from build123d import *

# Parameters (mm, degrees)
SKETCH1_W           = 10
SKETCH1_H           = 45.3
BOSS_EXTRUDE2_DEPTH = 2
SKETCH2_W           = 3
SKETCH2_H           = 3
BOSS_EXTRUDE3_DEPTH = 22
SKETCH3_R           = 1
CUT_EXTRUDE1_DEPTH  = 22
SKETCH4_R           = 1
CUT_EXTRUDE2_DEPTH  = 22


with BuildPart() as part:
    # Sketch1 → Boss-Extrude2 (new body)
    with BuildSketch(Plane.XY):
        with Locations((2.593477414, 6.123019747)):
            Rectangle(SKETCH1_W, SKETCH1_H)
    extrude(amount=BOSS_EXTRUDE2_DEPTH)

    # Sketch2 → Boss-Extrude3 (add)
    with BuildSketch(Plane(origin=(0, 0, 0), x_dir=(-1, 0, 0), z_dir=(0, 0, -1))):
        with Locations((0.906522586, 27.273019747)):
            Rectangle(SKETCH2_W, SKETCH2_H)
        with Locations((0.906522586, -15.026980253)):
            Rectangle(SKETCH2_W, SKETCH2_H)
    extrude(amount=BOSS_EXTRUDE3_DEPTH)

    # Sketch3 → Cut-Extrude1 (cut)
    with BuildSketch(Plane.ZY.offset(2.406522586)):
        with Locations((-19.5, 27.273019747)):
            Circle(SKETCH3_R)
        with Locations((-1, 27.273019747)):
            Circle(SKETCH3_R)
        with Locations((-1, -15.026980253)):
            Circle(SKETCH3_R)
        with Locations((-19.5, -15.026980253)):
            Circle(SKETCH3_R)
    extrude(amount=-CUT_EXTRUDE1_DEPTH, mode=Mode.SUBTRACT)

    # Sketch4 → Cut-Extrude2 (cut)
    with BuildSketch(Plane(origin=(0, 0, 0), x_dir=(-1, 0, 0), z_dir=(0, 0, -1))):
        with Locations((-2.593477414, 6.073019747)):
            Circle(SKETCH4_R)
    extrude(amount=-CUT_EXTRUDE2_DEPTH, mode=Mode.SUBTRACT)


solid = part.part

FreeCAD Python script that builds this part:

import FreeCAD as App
import Part
import Sketcher

doc = App.newDocument("Part")
body = doc.addObject("PartDesign::Body", "Body")

sketch1 = body.newObject("Sketcher::SketchObject", "Sketch")
sketch1.AttachmentSupport = (doc.getObject("XY_Plane"), [""])
sketch1.MapMode = "FlatFace"
sketch1.addGeometry(Part.LineSegment(App.Vector(-2, 29, 0), App.Vector(-2, -17, 0)), False)
sketch1.addGeometry(Part.LineSegment(App.Vector(-2, -17, 0), App.Vector(8, -17, 0)), False)
sketch1.addGeometry(Part.LineSegment(App.Vector(8, -17, 0), App.Vector(8, 29, 0)), False)
sketch1.addGeometry(Part.LineSegment(App.Vector(8, 29, 0), App.Vector(-2, 29, 0)), False)
sketch1.addConstraint(Sketcher.Constraint("Coincident", 0, 2, 1, 1))
sketch1.addConstraint(Sketcher.Constraint("Coincident", 1, 2, 2, 1))
sketch1.addConstraint(Sketcher.Constraint("Coincident", 2, 2, 3, 1))
sketch1.addConstraint(Sketcher.Constraint("Coincident", 3, 2, 0, 1))
sketch1.addConstraint(Sketcher.Constraint("Vertical", 0))
sketch1.addConstraint(Sketcher.Constraint("Horizontal", 1))
sketch1.addConstraint(Sketcher.Constraint("Vertical", 2))
sketch1.addConstraint(Sketcher.Constraint("Horizontal", 3))
sketch1.addConstraint(Sketcher.Constraint("DistanceX", 1, 1, 1, 2, 10.0))
sketch1.addConstraint(Sketcher.Constraint("DistanceY", 0, 2, 0, 1, 45.3))
sketch1.addConstraint(Sketcher.Constraint("DistanceY", 0, 2, -1, 1, 16.52698))
sketch1.addConstraint(Sketcher.Constraint("DistanceX", 0, 2, -1, 1, 2.406523))
pad1 = body.newObject("PartDesign::Pad", "Pad")
pad1.Profile = sketch1
pad1.Length = 2

sketch2 = body.newObject("Sketcher::SketchObject", "Sketch001")
sketch2.AttachmentSupport = (doc.getObject("XY_Plane"), [""])
sketch2.MapMode = "FlatFace"
sketch2.addGeometry(Part.LineSegment(App.Vector(0.6, 28.8, 0), App.Vector(0.6, 25.8, 0)), False)
sketch2.addGeometry(Part.LineSegment(App.Vector(0.6, 25.8, 0), App.Vector(-2.4, 25.8, 0)), False)
sketch2.addGeometry(Part.LineSegment(App.Vector(-2.4, 25.8, 0), App.Vector(-2.4, 28.8, 0)), False)
sketch2.addGeometry(Part.LineSegment(App.Vector(-2.4, 28.8, 0), App.Vector(0.6, 28.8, 0)), False)
sketch2.addGeometry(Part.LineSegment(App.Vector(0.6, -13.5, 0), App.Vector(0.6, -16.5, 0)), False)
sketch2.addGeometry(Part.LineSegment(App.Vector(0.6, -16.5, 0), App.Vector(-2.4, -16.5, 0)), False)
sketch2.addGeometry(Part.LineSegment(App.Vector(-2.4, -16.5, 0), App.Vector(-2.4, -13.5, 0)), False)
sketch2.addGeometry(Part.LineSegment(App.Vector(-2.4, -13.5, 0), App.Vector(0.6, -13.5, 0)), False)
sketch2.addConstraint(Sketcher.Constraint("Coincident", 0, 2, 1, 1))
sketch2.addConstraint(Sketcher.Constraint("Coincident", 1, 2, 2, 1))
sketch2.addConstraint(Sketcher.Constraint("Coincident", 2, 2, 3, 1))
sketch2.addConstraint(Sketcher.Constraint("Coincident", 3, 2, 0, 1))
sketch2.addConstraint(Sketcher.Constraint("Coincident", 4, 2, 5, 1))
sketch2.addConstraint(Sketcher.Constraint("Coincident", 5, 2, 6, 1))
sketch2.addConstraint(Sketcher.Constraint("Coincident", 6, 2, 7, 1))
sketch2.addConstraint(Sketcher.Constraint("Coincident", 7, 2, 4, 1))
sketch2.addConstraint(Sketcher.Constraint("Vertical", 0))
sketch2.addConstraint(Sketcher.Constraint("Horizontal", 1))
sketch2.addConstraint(Sketcher.Constraint("Vertical", 2))
sketch2.addConstraint(Sketcher.Constraint("Horizontal", 3))
sketch2.addConstraint(Sketcher.Constraint("Vertical", 4))
sketch2.addConstraint(Sketcher.Constraint("Horizontal", 5))
sketch2.addConstraint(Sketcher.Constraint("Vertical", 6))
sketch2.addConstraint(Sketcher.Constraint("Horizontal", 7))
sketch2.addConstraint(Sketcher.Constraint("Vertical", 3, 2, 4, 2))
sketch2.addConstraint(Sketcher.Constraint("Vertical", 2, 2, 5, 2))
sketch2.addConstraint(Sketcher.Constraint("Equal", 7, 0))
sketch2.addConstraint(Sketcher.Constraint("Equal", 2, 4))
sketch2.addConstraint(Sketcher.Constraint("DistanceX", 1, 2, 1, 1, 3.0))
sketch2.addConstraint(Sketcher.Constraint("DistanceY", 4, 2, 0, 2, 42.3))
sketch2.addConstraint(Sketcher.Constraint("DistanceY", -1, 1, 0, 2, 25.77302))
sketch2.addConstraint(Sketcher.Constraint("DistanceX", -1, 1, 0, 2, 0.593477))
pad2 = body.newObject("PartDesign::Pad", "Pad001")
pad2.Profile = sketch2
pad2.Length = 22
pad2.Reversed = True

sketch3 = body.newObject("Sketcher::SketchObject", "Sketch002")
sketch3.AttachmentSupport = (doc.getObject("YZ_Plane"), [""])
sketch3.MapMode = "FlatFace"
sketch3.AttachmentOffset = App.Placement(App.Vector(0, 0, -2.406523), App.Rotation())
sketch3.addGeometry(Part.Circle(App.Vector(27.3, -19.5, 0), App.Vector(0, 0, 1), 1), False)
sketch3.addGeometry(Part.Circle(App.Vector(27.3, -1, 0), App.Vector(0, 0, 1), 1), False)
sketch3.addGeometry(Part.Circle(App.Vector(-15, -1, 0), App.Vector(0, 0, 1), 1), False)
sketch3.addGeometry(Part.Circle(App.Vector(-15, -19.5, 0), App.Vector(0, 0, 1), 1), False)
sketch3.addConstraint(Sketcher.Constraint("Equal", 0, 1))
sketch3.addConstraint(Sketcher.Constraint("Equal", 1, 2))
sketch3.addConstraint(Sketcher.Constraint("Equal", 2, 3))
sketch3.addConstraint(Sketcher.Constraint("Horizontal", 1, 3, 2, 3))
sketch3.addConstraint(Sketcher.Constraint("Horizontal", 0, 3, 3, 3))
sketch3.addConstraint(Sketcher.Constraint("Vertical", 0, 3, 1, 3))
sketch3.addConstraint(Sketcher.Constraint("Vertical", 2, 3, 3, 3))
sketch3.addConstraint(Sketcher.Constraint("Diameter", 0, 2.0))
sketch3.addConstraint(Sketcher.Constraint("DistanceY", 1, 3, -1, 1, 1.0))
sketch3.addConstraint(Sketcher.Constraint("DistanceY", 0, 3, -1, 1, 19.5))
sketch3.addConstraint(Sketcher.Constraint("DistanceX", 2, 3, 1, 3, 42.3))
sketch3.addConstraint(Sketcher.Constraint("DistanceX", -1, 1, 0, 3, 27.27302))
pocket1 = body.newObject("PartDesign::Pocket", "Pocket")
pocket1.Profile = sketch3
pocket1.Length = 22
pocket1.Reversed = True

sketch4 = body.newObject("Sketcher::SketchObject", "Sketch003")
sketch4.AttachmentSupport = (doc.getObject("XY_Plane"), [""])
sketch4.MapMode = "FlatFace"
sketch4.addGeometry(Part.Circle(App.Vector(2.6, 6.1, 0), App.Vector(0, 0, 1), 1), False)
sketch4.addConstraint(Sketcher.Constraint("Diameter", 0, 2.0))
sketch4.addConstraint(Sketcher.Constraint("DistanceY", -1, 1, 0, 3, 6.07302))
sketch4.addConstraint(Sketcher.Constraint("DistanceX", -1, 1, 0, 3, 2.593477))
pocket2 = body.newObject("PartDesign::Pocket", "Pocket001")
pocket2.Profile = sketch4
pocket2.Length = 22
pocket2.Reversed = True

doc.recompute()
